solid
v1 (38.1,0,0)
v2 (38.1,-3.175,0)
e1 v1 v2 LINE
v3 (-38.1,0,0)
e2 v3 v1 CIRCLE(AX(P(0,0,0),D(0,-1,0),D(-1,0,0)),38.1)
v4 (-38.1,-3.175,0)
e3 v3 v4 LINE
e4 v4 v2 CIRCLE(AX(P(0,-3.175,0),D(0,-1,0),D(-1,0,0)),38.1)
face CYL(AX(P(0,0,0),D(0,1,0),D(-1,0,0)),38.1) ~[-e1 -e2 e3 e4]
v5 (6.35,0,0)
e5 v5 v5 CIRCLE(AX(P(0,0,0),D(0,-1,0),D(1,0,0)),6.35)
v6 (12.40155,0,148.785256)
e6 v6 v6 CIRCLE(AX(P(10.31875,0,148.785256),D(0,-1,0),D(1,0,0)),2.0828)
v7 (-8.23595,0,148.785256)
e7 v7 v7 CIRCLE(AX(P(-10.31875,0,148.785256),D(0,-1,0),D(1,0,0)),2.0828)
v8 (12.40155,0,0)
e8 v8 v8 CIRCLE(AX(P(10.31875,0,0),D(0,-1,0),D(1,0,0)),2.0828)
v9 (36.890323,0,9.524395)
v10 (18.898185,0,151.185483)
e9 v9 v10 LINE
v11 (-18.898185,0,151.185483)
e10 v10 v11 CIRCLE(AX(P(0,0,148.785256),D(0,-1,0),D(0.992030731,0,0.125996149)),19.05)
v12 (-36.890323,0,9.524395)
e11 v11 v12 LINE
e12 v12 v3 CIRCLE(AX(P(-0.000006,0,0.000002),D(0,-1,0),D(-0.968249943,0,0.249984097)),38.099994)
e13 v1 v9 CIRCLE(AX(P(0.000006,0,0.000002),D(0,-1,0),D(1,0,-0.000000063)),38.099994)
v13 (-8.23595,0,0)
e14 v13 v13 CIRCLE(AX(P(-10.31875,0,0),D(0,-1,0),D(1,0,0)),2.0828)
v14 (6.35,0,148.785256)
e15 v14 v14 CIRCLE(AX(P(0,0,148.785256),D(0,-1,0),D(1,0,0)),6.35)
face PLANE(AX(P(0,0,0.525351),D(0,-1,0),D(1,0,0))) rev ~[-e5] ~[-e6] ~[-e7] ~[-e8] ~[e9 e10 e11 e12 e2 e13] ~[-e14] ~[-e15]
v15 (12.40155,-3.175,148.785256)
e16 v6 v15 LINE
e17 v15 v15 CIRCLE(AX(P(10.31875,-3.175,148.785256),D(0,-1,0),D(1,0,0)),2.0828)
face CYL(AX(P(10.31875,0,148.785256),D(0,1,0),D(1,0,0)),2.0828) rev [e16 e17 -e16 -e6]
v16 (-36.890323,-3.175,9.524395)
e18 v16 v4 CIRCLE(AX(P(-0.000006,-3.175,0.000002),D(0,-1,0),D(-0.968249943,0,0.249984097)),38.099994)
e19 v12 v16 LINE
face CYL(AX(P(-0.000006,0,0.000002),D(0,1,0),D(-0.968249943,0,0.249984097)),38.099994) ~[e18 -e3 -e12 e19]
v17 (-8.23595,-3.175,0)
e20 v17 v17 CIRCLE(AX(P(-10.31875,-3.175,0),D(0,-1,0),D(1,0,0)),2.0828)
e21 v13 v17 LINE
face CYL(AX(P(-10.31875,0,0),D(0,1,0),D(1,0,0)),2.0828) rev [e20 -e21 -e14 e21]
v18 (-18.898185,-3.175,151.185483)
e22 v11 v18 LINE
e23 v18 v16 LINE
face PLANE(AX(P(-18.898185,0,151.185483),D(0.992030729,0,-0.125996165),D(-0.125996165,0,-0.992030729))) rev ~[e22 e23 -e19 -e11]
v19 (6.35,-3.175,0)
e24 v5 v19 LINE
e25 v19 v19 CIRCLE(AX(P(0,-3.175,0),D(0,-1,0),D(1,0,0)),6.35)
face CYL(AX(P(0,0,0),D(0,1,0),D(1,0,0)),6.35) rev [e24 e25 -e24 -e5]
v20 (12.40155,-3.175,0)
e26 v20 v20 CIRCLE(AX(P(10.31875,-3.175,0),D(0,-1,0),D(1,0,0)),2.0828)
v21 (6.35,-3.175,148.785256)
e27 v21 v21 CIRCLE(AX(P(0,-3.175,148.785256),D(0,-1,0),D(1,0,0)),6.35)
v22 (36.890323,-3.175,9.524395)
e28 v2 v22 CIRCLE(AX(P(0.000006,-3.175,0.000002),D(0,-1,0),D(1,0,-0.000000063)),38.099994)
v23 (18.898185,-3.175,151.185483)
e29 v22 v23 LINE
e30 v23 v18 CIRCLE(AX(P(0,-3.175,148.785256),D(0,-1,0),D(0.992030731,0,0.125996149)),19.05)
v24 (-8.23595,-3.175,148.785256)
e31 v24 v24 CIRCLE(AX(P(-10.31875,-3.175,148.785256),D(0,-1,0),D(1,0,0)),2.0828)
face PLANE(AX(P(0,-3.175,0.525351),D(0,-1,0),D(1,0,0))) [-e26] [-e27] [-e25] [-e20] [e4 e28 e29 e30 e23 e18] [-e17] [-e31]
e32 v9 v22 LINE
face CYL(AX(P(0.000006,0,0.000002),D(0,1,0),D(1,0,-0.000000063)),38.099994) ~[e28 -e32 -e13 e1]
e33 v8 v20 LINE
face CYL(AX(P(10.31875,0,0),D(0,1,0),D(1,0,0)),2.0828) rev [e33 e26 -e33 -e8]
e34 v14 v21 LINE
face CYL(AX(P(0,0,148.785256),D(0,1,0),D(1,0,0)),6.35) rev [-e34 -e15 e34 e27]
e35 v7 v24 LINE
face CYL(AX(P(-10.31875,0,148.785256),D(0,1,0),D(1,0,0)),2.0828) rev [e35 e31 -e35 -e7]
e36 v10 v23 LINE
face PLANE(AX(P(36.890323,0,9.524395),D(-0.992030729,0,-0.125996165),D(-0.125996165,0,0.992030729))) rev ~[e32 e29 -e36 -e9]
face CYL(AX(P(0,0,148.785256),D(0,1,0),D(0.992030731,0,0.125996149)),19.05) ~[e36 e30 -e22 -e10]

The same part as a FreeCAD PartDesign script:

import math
import FreeCAD as App
import Part
import Sketcher
Q = App.Units.Quantity

doc = App.newDocument("Part")
body = doc.addObject("PartDesign::Body", "Body")

# Sketch on XZ plane
sketch1 = body.newObject("Sketcher::SketchObject", "Sketch")
sketch1.AttachmentSupport = (doc.getObject("XZ_Plane"), [""])
sketch1.MapMode = "FlatFace"
sketch1.addGeometry(Part.ArcOfCircle(Part.Circle(App.Vector(-0.000006, 0.000002, 0), App.Vector(0, 0, 1), 38.099994), math.radians(165.523429), math.radians(180.000004)), False)
sketch1.addGeometry(Part.ArcOfCircle(Part.Circle(App.Vector(0, 0, 0), App.Vector(0, 0, 1), 38.1), math.radians(180), math.radians(360)), False)
sketch1.addGeometry(Part.ArcOfCircle(Part.Circle(App.Vector(0.000006, 0.000002, 0), App.Vector(0, 0, 1), 38.099994), math.radians(-0.000004), math.radians(14.476571)), False)
sketch1.addGeometry(Part.LineSegment(App.Vector(36.890323, 9.524395, 0), App.Vector(18.898185, 151.185483, 0)), False)
sketch1.addGeometry(Part.ArcOfCircle(Part.Circle(App.Vector(0, 148.785256, 0), App.Vector(0, 0, 1), 19.05), math.radians(7.238286), math.radians(172.761714)), False)
sketch1.addGeometry(Part.LineSegment(App.Vector(-18.898185, 151.185483, 0), App.Vector(-36.890323, 9.524395, 0)), False)
sketch1.addGeometry(Part.Circle(App.Vector(-10.31875, 0, 0), App.Vector(0, 0, 1), 2.0828), False)
sketch1.addGeometry(Part.Circle(App.Vector(0, 0, 0), App.Vector(0, 0, 1), 6.35), False)
sketch1.addGeometry(Part.Circle(App.Vector(10.31875, 0, 0), App.Vector(0, 0, 1), 2.0828), False)
sketch1.addGeometry(Part.Circle(App.Vector(-10.31875, 148.785256, 0), App.Vector(0, 0, 1), 2.0828), False)
sketch1.addGeometry(Part.Circle(App.Vector(0, 148.785256, 0), App.Vector(0, 0, 1), 6.35), False)
sketch1.addGeometry(Part.Circle(App.Vector(10.31875, 148.785256, 0), App.Vector(0, 0, 1), 2.0828), False)
sketch1.addConstraint(Sketcher.Constraint("Tangent", 0, 2, 1, 1))
sketch1.addConstraint(Sketcher.Constraint("Tangent", 1, 2, 2, 1))
sketch1.addConstraint(Sketcher.Constraint("Coincident", 2, 2, 3, 1))
sketch1.addConstraint(Sketcher.Constraint("Tangent", 3, 2, 4, 1))
sketch1.addConstraint(Sketcher.Constraint("Tangent", 4, 2, 5, 1))
sketch1.addConstraint(Sketcher.Constraint("Coincident", 5, 2, 0, 1))
sketch1.addConstraint(Sketcher.Constraint("Coincident", 0, 3, -1, 1))
sketch1.addConstraint(Sketcher.Constraint("Coincident", 7, 3, -1, 1))
sketch1.addConstraint(Sketcher.Constraint("Coincident", 10, 3, 4, 3))
sketch1.addConstraint(Sketcher.Constraint("Equal", 0, 2))
sketch1.addConstraint(Sketcher.Constraint("Equal", 6, 8))
sketch1.addConstraint(Sketcher.Constraint("Equal", 8, 9))
sketch1.addConstraint(Sketcher.Constraint("Equal", 7, 10))
sketch1.addConstraint(Sketcher.Constraint("Equal", 9, 11))
sketch1.addConstraint(Sketcher.Constraint("Symmetric", 6, 3, 8, 3, -1, 1))
sketch1.addConstraint(Sketcher.Constraint("Symmetric", 0, 2, 1, 2, -1, 1))
sketch1.addConstraint(Sketcher.Constraint("Symmetric", 9, 3, 11, 3, -2))
sketch1.addConstraint(Sketcher.Constraint("PointOnObject", 4, 3, -2))
sketch1.addConstraint(Sketcher.Constraint("PointOnObject", 6, 3, -1))
sketch1.addConstraint(Sketcher.Constraint("PointOnObject", 0, 2, -1))
sketch1.addConstraint(Sketcher.Constraint("Horizontal", 4, 3, 9, 3))
sketch1.addConstraint(Sketcher.Constraint("Horizontal", 2, 2, 5, 2))
sketch1.addConstraint(Sketcher.Constraint("Vertical", 6, 3, 9, 3))
sketch1.addConstraint(Sketcher.Constraint("Diameter", 7, Q("0.5 in")))
sketch1.addConstraint(Sketcher.Constraint("Radius", 1, Q("1.5 in")))
sketch1.addConstraint(Sketcher.Constraint("Radius", 4, Q("0.75 in")))
sketch1.addConstraint(Sketcher.Constraint("Diameter", 6, Q("0.164 in")))
sketch1.addConstraint(Sketcher.Constraint("DistanceX", 6, 3, -1, 1, Q("0.40625 in")))
sketch1.addConstraint(Sketcher.Constraint("DistanceY", 2, 2, 3, 2, Q("141.661088 mm")))
sketch1.addConstraint(Sketcher.Constraint("Distance", 3, Q("142.799093 mm")))
pad1 = body.newObject("PartDesign::Pad", "Pad")
pad1.Profile = sketch1
pad1.Length = Q("0.125 in")

doc.recompute()
